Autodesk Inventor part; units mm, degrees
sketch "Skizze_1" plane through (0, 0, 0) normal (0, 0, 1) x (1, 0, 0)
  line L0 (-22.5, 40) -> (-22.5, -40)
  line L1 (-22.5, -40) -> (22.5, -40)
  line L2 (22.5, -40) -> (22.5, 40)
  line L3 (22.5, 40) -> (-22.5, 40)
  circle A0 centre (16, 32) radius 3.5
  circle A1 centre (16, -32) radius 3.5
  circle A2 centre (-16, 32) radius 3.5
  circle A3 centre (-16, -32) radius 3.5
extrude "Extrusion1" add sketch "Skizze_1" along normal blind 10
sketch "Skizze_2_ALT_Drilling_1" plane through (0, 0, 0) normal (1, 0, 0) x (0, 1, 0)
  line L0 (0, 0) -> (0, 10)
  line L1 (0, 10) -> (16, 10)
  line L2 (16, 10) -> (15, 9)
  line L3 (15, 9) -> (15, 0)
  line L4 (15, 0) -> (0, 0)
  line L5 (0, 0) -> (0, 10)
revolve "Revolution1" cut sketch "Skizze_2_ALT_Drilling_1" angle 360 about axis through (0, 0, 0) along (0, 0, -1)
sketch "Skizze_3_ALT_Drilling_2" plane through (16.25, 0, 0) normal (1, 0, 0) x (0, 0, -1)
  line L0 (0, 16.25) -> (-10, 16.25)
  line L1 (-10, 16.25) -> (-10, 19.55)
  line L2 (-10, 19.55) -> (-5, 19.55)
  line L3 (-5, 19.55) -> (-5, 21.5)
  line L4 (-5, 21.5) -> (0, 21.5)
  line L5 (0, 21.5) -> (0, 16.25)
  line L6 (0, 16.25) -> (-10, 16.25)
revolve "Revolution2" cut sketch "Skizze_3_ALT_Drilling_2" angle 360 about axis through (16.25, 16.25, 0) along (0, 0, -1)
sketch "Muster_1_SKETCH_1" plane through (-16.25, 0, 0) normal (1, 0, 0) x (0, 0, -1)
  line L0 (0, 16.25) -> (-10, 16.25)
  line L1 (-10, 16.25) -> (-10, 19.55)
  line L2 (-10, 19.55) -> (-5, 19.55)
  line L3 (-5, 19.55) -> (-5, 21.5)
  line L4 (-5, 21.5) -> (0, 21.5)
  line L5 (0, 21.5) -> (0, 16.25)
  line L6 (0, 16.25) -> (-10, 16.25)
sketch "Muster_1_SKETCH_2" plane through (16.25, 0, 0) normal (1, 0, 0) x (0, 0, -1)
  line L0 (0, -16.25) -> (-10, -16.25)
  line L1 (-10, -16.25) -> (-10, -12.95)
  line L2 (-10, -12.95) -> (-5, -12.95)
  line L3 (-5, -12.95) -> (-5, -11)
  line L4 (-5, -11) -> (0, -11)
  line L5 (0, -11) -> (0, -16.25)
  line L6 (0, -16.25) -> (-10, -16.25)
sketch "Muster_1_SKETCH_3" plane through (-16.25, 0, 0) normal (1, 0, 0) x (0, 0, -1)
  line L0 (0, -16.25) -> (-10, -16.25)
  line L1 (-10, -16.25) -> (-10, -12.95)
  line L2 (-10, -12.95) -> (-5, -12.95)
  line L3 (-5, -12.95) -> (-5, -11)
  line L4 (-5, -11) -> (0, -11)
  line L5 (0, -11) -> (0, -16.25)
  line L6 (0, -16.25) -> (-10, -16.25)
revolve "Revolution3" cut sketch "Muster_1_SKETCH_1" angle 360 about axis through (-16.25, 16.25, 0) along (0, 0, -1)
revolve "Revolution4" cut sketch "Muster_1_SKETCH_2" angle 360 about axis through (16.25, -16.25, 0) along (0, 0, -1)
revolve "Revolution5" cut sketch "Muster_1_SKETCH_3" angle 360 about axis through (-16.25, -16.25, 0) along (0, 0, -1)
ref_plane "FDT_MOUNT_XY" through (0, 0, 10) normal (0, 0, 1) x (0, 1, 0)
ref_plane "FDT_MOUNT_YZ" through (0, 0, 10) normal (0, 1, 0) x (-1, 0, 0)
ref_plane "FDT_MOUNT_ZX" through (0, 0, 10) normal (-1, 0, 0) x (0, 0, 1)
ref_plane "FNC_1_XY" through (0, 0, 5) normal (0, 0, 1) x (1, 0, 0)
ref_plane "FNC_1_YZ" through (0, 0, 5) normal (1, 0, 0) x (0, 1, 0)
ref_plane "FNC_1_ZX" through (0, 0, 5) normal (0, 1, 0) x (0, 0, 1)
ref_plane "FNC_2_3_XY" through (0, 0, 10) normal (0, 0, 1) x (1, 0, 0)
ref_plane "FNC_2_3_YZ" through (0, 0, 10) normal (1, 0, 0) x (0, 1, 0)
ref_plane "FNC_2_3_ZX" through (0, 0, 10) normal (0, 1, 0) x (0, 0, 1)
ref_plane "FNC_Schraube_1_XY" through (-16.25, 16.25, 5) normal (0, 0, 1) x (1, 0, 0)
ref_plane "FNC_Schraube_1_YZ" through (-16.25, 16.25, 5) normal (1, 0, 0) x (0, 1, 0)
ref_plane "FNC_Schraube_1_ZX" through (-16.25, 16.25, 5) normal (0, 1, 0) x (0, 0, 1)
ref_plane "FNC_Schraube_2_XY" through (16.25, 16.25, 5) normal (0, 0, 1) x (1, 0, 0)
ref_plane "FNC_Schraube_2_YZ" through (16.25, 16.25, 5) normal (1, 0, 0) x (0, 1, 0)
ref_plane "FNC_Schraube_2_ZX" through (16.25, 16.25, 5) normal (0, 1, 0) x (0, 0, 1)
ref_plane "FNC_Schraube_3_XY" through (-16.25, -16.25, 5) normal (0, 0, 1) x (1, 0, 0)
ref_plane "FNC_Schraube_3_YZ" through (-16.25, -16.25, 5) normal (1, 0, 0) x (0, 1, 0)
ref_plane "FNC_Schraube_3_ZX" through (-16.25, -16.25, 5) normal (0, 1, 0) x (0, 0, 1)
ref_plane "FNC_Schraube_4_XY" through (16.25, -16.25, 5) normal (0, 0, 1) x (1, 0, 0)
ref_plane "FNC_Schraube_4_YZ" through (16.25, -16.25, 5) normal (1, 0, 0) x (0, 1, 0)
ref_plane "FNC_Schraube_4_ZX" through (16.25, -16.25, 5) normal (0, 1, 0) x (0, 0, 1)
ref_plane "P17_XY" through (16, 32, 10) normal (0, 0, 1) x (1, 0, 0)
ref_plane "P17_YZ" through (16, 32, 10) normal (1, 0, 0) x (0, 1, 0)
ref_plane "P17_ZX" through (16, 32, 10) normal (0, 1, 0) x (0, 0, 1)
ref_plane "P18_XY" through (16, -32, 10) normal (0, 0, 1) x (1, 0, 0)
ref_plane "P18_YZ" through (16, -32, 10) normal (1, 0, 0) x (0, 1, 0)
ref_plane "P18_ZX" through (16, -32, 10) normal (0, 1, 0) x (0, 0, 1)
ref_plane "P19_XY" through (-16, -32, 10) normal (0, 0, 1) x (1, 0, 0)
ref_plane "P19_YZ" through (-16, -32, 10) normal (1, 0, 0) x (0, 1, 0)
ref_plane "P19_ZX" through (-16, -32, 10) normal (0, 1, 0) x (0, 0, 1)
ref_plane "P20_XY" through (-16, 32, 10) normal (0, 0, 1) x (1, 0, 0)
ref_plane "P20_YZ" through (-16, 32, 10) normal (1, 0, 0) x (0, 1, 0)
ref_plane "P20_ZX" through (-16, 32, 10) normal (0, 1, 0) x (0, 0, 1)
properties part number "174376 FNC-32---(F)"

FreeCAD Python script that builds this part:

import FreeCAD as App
import Part
import Sketcher

V = App.Vector

doc = App.newDocument("Part")
params = doc.addObject("Spreadsheet::Sheet", "Params")
for row, (alias, value) in enumerate([
    ("sketch1_diameter", "7 mm"),
    ("sketch1_width", "45 mm"),
    ("sketch1_height", "80 mm"),
    ("pad1_length", "10 mm"),
    ("sketch2_width", "15 mm"),
    ("sketch2_width2", "16 mm"),
    ("sketch2_height", "10 mm"),
    ("sketch2_height2", "9 mm"),
    ("groove_angle", "360 deg"),
    ("sketch3_height", "10 mm"),
    ("sketch3_width", "3.3 mm"),
    ("sketch3_width2", "5.25 mm"),
    ("groove2_angle", "360 deg"),
    ("sketch4_height", "10 mm"),
    ("sketch4_width", "3.3 mm"),
    ("sketch4_width2", "5.25 mm"),
    ("groove3_angle", "360 deg"),
    ("sketch5_height", "10 mm"),
    ("sketch5_width", "3.3 mm"),
    ("sketch5_width2", "5.25 mm"),
    ("groove4_angle", "360 deg"),
    ("sketch6_height", "10 mm"),
    ("sketch6_width", "3.3 mm"),
    ("sketch6_width2", "5.25 mm"),
    ("groove5_angle", "360 deg"),
], start=1):
    params.set(f"A{row}", alias)
    params.set(f"B{row}", "=" + value)
    params.setAlias(f"B{row}", alias)

body = doc.addObject("PartDesign::Body", "Body")

# Sketch on XY plane
sketch1 = body.newObject("Sketcher::SketchObject", "Sketch")
sketch1.AttachmentSupport = (doc.getObject("XY_Plane"), [""])
sketch1.MapMode = "FlatFace"
sketch1.addGeometry(Part.LineSegment(V(22.5, 40, 0), V(-22.5, 40, 0)), False)
sketch1.addGeometry(Part.LineSegment(V(-22.5, 40, 0), V(-22.5, -40, 0)), False)
sketch1.addGeometry(Part.LineSegment(V(-22.5, -40, 0), V(22.5, -40, 0)), False)
sketch1.addGeometry(Part.LineSegment(V(22.5, -40, 0), V(22.5, 40, 0)), False)
sketch1.addGeometry(Part.Circle(V(-16, -32, 0), V(0, 0, 1), 3.5), False)
sketch1.addGeometry(Part.Circle(V(16, -32, 0), V(0, 0, 1), 3.5), False)
sketch1.addGeometry(Part.Circle(V(-16, 32, 0), V(0, 0, 1), 3.5), False)
sketch1.addGeometry(Part.Circle(V(16, 32, 0), V(0, 0, 1), 3.5), False)
sketch1.addConstraint(Sketcher.Constraint("Coincident", 0, 2, 1, 1))
sketch1.addConstraint(Sketcher.Constraint("Coincident", 1, 2, 2, 1))
sketch1.addConstraint(Sketcher.Constraint("Coincident", 2, 2, 3, 1))
sketch1.addConstraint(Sketcher.Constraint("Coincident", 3, 2, 0, 1))
sketch1.addConstraint(Sketcher.Constraint("Horizontal", 0))
sketch1.addConstraint(Sketcher.Constraint("Vertical", 1))
sketch1.addConstraint(Sketcher.Constraint("Horizontal", 2))
sketch1.addConstraint(Sketcher.Constraint("Vertical", 3))
sketch1.addConstraint(Sketcher.Constraint("Equal", 4, 5))
sketch1.addConstraint(Sketcher.Constraint("Equal", 5, 6))
sketch1.addConstraint(Sketcher.Constraint("Equal", 6, 7))
sketch1.addConstraint(Sketcher.Constraint("Symmetric", 5, 3, 6, 3, -1, 1))
sketch1.addConstraint(Sketcher.Constraint("Symmetric", 4, 3, 7, 3, -1, 1))
sketch1.addConstraint(Sketcher.Constraint("Symmetric", 0, 2, 2, 2, -1, 1))
sketch1.addConstraint(Sketcher.Constraint("Symmetric", 4, 3, 5, 3, -2))
sketch1.addConstraint(Sketcher.Constraint("Diameter", 4, 7.0))
sketch1.addConstraint(Sketcher.Constraint("DistanceX", 0, 2, 0, 1, 45.0))
sketch1.addConstraint(Sketcher.Constraint("DistanceY", 1, 2, 1, 1, 80.0))
sketch1.addConstraint(Sketcher.Constraint("DistanceX", 4, 3, -1, 1, 16.0))
sketch1.addConstraint(Sketcher.Constraint("DistanceY", 4, 3, -1, 1, 32.0))
sketch1.setExpression("Constraints[15]", "Params.sketch1_diameter")
sketch1.setExpression("Constraints[16]", "Params.sketch1_width")
sketch1.setExpression("Constraints[17]", "Params.sketch1_height")
pad1 = body.newObject("PartDesign::Pad", "Pad")
pad1.Profile = sketch1
pad1.setExpression("Length", "Params.pad1_length")

# Sketch on YZ plane
sketch2 = body.newObject("Sketcher::SketchObject", "Sketch001")
sketch2.AttachmentSupport = (doc.getObject("YZ_Plane"), [""])
sketch2.MapMode = "FlatFace"
sketch2.addGeometry(Part.LineSegment(V(0, 10, 0), V(0, 0, 0)), False)
sketch2.addGeometry(Part.LineSegment(V(0, 0, 0), V(15, 0, 0)), False)
sketch2.addGeometry(Part.LineSegment(V(15, 0, 0), V(15, 9, 0)), False)
sketch2.addGeometry(Part.LineSegment(V(15, 9, 0), V(16, 10, 0)), False)
sketch2.addGeometry(Part.LineSegment(V(16, 10, 0), V(0, 10, 0)), False)
sketch2.addConstraint(Sketcher.Constraint("Coincident", 0, 2, 1, 1))
sketch2.addConstraint(Sketcher.Constraint("Coincident", 1, 2, 2, 1))
sketch2.addConstraint(Sketcher.Constraint("Coincident", 2, 2, 3, 1))
sketch2.addConstraint(Sketcher.Constraint("Coincident", 3, 2, 4, 1))
sketch2.addConstraint(Sketcher.Constraint("Coincident", 4, 2, 0, 1))
sketch2.addConstraint(Sketcher.Constraint("Vertical", 0))
sketch2.addConstraint(Sketcher.Constraint("Horizontal", 1))
sketch2.addConstraint(Sketcher.Constraint("Vertical", 2))
sketch2.addConstraint(Sketcher.Constraint("Horizontal", 4))
sketch2.addConstraint(Sketcher.Constraint("Coincident", 0, 2, -1, 1))
sketch2.addConstraint(Sketcher.Constraint("DistanceX", 1, 1, 1, 2, 15.0))
sketch2.addConstraint(Sketcher.Constraint("DistanceX", 4, 2, 4, 1, 16.0))
sketch2.addConstraint(Sketcher.Constraint("DistanceY", 0, 2, 0, 1, 10.0))
sketch2.addConstraint(Sketcher.Constraint("DistanceY", 2, 1, 2, 2, 9.0))
sketch2.setExpression("Constraints[10]", "Params.sketch2_width")
sketch2.setExpression("Constraints[11]", "Params.sketch2_width2")
sketch2.setExpression("Constraints[12]", "Params.sketch2_height")
sketch2.setExpression("Constraints[13]", "Params.sketch2_height2")
groove = body.newObject("PartDesign::Groove", "Groove")
groove.Profile = sketch2
groove.ReferenceAxis = (sketch2, ["V_Axis"])
groove.setExpression("Angle", "Params.groove_angle")

# Sketch on YZ plane
sketch3 = body.newObject("Sketcher::SketchObject", "Sketch002")
sketch3.AttachmentSupport = (doc.getObject("YZ_Plane"), [""])
sketch3.MapMode = "FlatFace"
sketch3.AttachmentOffset = App.Placement(V(0, 0, 16.25), App.Rotation())
sketch3.addGeometry(Part.LineSegment(V(16.2, 10, 0), V(16.2, 0, 0)), False)
sketch3.addGeometry(Part.LineSegment(V(16.2, 0, 0), V(21.5, 0, 0)), False)
sketch3.addGeometry(Part.LineSegment(V(21.5, 0, 0), V(21.5, 5, 0)), False)
sketch3.addGeometry(Part.LineSegment(V(21.5, 5, 0), V(19.6, 5, 0)), False)
sketch3.addGeometry(Part.LineSegment(V(19.6, 5, 0), V(19.6, 10, 0)), False)
sketch3.addGeometry(Part.LineSegment(V(19.6, 10, 0), V(16.2, 10, 0)), False)
sketch3.addGeometry(Part.LineSegment(V(16.2, 10, 0), V(16.2, 0, 0)), True)  # axis
sketch3.addConstraint(Sketcher.Constraint("Coincident", 0, 2, 1, 1))
sketch3.addConstraint(Sketcher.Constraint("Coincident", 1, 2, 2, 1))
sketch3.addConstraint(Sketcher.Constraint("Coincident", 2, 2, 3, 1))
sketch3.addConstraint(Sketcher.Constraint("Coincident", 3, 2, 4, 1))
sketch3.addConstraint(Sketcher.Constraint("Coincident", 4, 2, 5, 1))
sketch3.addConstraint(Sketcher.Constraint("Coincident", 5, 2, 0, 1))
sketch3.addConstraint(Sketcher.Constraint("Vertical", 0))
sketch3.addConstraint(Sketcher.Constraint("Horizontal", 1))
sketch3.addConstraint(Sketcher.Constraint("Vertical", 2))
sketch3.addConstraint(Sketcher.Constraint("Horizontal", 3))
sketch3.addConstraint(Sketcher.Constraint("Vertical", 4))
sketch3.addConstraint(Sketcher.Constraint("Horizontal", 5))
sketch3.addConstraint(Sketcher.Constraint("Vertical", 6))
sketch3.addConstraint(Sketcher.Constraint("Coincident", 6, 1, 5, 2))
sketch3.addConstraint(Sketcher.Constraint("PointOnObject", 0, 2, -1))
sketch3.addConstraint(Sketcher.Constraint("PointOnObject", 6, 2, -1))
sketch3.addConstraint(Sketcher.Constraint("Equal", 2, 4))
sketch3.addConstraint(Sketcher.Constraint("DistanceY", 0, 2, 0, 1, 10.0))
sketch3.addConstraint(Sketcher.Constraint("DistanceX", 5, 2, 5, 1, 3.3))
sketch3.addConstraint(Sketcher.Constraint("DistanceX", 1, 1, 1, 2, 5.25))
sketch3.addConstraint(Sketcher.Constraint("DistanceX", -1, 1, 1, 2, 21.5))
sketch3.setExpression("Constraints[17]", "Params.sketch3_height")
sketch3.setExpression("Constraints[18]", "Params.sketch3_width")
sketch3.setExpression("Constraints[19]", "Params.sketch3_width2")
groove2 = body.newObject("PartDesign::Groove", "Groove001")
groove2.Profile = sketch3
groove2.ReferenceAxis = (sketch3, ["Axis0"])
groove2.setExpression("Angle", "Params.groove2_angle")

# Sketch on YZ plane
sketch4 = body.newObject("Sketcher::SketchObject", "Sketch003")
sketch4.AttachmentSupport = (doc.getObject("YZ_Plane"), [""])
sketch4.MapMode = "FlatFace"
sketch4.AttachmentOffset = App.Placement(V(0, 0, -16.25), App.Rotation())
sketch4.addGeometry(Part.LineSegment(V(16.2, 10, 0), V(16.2, 0, 0)), False)
sketch4.addGeometry(Part.LineSegment(V(16.2, 0, 0), V(21.5, 0, 0)), False)
sketch4.addGeometry(Part.LineSegment(V(21.5, 0, 0), V(21.5, 5, 0)), False)
sketch4.addGeometry(Part.LineSegment(V(21.5, 5, 0), V(19.6, 5, 0)), False)
sketch4.addGeometry(Part.LineSegment(V(19.6, 5, 0), V(19.6, 10, 0)), False)
sketch4.addGeometry(Part.LineSegment(V(19.6, 10, 0), V(16.2, 10, 0)), False)
sketch4.addGeometry(Part.LineSegment(V(16.2, 10, 0), V(16.2, 0, 0)), True)  # axis
sketch4.addConstraint(Sketcher.Constraint("Coincident", 0, 2, 1, 1))
sketch4.addConstraint(Sketcher.Constraint("Coincident", 1, 2, 2, 1))
sketch4.addConstraint(Sketcher.Constraint("Coincident", 2, 2, 3, 1))
sketch4.addConstraint(Sketcher.Constraint("Coincident", 3, 2, 4, 1))
sketch4.addConstraint(Sketcher.Constraint("Coincident", 4, 2, 5, 1))
sketch4.addConstraint(Sketcher.Constraint("Coincident", 5, 2, 0, 1))
sketch4.addConstraint(Sketcher.Constraint("Vertical", 0))
sketch4.addConstraint(Sketcher.Constraint("Horizontal", 1))
sketch4.addConstraint(Sketcher.Constraint("Vertical", 2))
sketch4.addConstraint(Sketcher.Constraint("Horizontal", 3))
sketch4.addConstraint(Sketcher.Constraint("Vertical", 4))
sketch4.addConstraint(Sketcher.Constraint("Horizontal", 5))
sketch4.addConstraint(Sketcher.Constraint("Vertical", 6))
sketch4.addConstraint(Sketcher.Constraint("Coincident", 6, 1, 5, 2))
sketch4.addConstraint(Sketcher.Constraint("PointOnObject", 0, 2, -1))
sketch4.addConstraint(Sketcher.Constraint("PointOnObject", 6, 2, -1))
sketch4.addConstraint(Sketcher.Constraint("Equal", 2, 4))
sketch4.addConstraint(Sketcher.Constraint("DistanceY", 0, 2, 0, 1, 10.0))
sketch4.addConstraint(Sketcher.Constraint("DistanceX", 5, 2, 5, 1, 3.3))
sketch4.addConstraint(Sketcher.Constraint("DistanceX", 1, 1, 1, 2, 5.25))
sketch4.addConstraint(Sketcher.Constraint("DistanceX", -1, 1, 1, 2, 21.5))
sketch4.setExpression("Constraints[17]", "Params.sketch4_height")
sketch4.setExpression("Constraints[18]", "Params.sketch4_width")
sketch4.setExpression("Constraints[19]", "Params.sketch4_width2")
groove3 = body.newObject("PartDesign::Groove", "Groove002")
groove3.Profile = sketch4
groove3.ReferenceAxis = (sketch4, ["Axis0"])
groove3.setExpression("Angle", "Params.groove3_angle")

# Sketch on YZ plane
sketch5 = body.newObject("Sketcher::SketchObject", "Sketch004")
sketch5.AttachmentSupport = (doc.getObject("YZ_Plane"), [""])
sketch5.MapMode = "FlatFace"
sketch5.AttachmentOffset = App.Placement(V(0, 0, 16.25), App.Rotation())
sketch5.addGeometry(Part.LineSegment(V(-16.2, 10, 0), V(-16.2, 0, 0)), False)
sketch5.addGeometry(Part.LineSegment(V(-16.2, 0, 0), V(-11, 0, 0)), False)
sketch5.addGeometry(Part.LineSegment(V(-11, 0, 0), V(-11, 5, 0)), False)
sketch5.addGeometry(Part.LineSegment(V(-11, 5, 0), V(-12.9, 5, 0)), False)
sketch5.addGeometry(Part.LineSegment(V(-12.9, 5, 0), V(-12.9, 10, 0)), False)
sketch5.addGeometry(Part.LineSegment(V(-12.9, 10, 0), V(-16.2, 10, 0)), False)
sketch5.addGeometry(Part.LineSegment(V(-16.2, 10, 0), V(-16.2, 0, 0)), True)  # axis
sketch5.addConstraint(Sketcher.Constraint("Coincident", 0, 2, 1, 1))
sketch5.addConstraint(Sketcher.Constraint("Coincident", 1, 2, 2, 1))
sketch5.addConstraint(Sketcher.Constraint("Coincident", 2, 2, 3, 1))
sketch5.addConstraint(Sketcher.Constraint("Coincident", 3, 2, 4, 1))
sketch5.addConstraint(Sketcher.Constraint("Coincident", 4, 2, 5, 1))
sketch5.addConstraint(Sketcher.Constraint("Coincident", 5, 2, 0, 1))
sketch5.addConstraint(Sketcher.Constraint("Vertical", 0))
sketch5.addConstraint(Sketcher.Constraint("Horizontal", 1))
sketch5.addConstraint(Sketcher.Constraint("Vertical", 2))
sketch5.addConstraint(Sketcher.Constraint("Horizontal", 3))
sketch5.addConstraint(Sketcher.Constraint("Vertical", 4))
sketch5.addConstraint(Sketcher.Constraint("Horizontal", 5))
sketch5.addConstraint(Sketcher.Constraint("Vertical", 6))
sketch5.addConstraint(Sketcher.Constraint("Coincident", 6, 1, 5, 2))
sketch5.addConstraint(Sketcher.Constraint("PointOnObject", 0, 2, -1))
sketch5.addConstraint(Sketcher.Constraint("PointOnObject", 6, 2, -1))
sketch5.addConstraint(Sketcher.Constraint("Equal", 2, 4))
sketch5.addConstraint(Sketcher.Constraint("DistanceY", 0, 2, 0, 1, 10.0))
sketch5.addConstraint(Sketcher.Constraint("DistanceX", 5, 2, 5, 1, 3.3))
sketch5.addConstraint(Sketcher.Constraint("DistanceX", 1, 2, -1, 1, 11.0))
sketch5.addConstraint(Sketcher.Constraint("DistanceX", 1, 1, 1, 2, 5.25))
sketch5.setExpression("Constraints[17]", "Params.sketch5_height")
sketch5.setExpression("Constraints[18]", "Params.sketch5_width")
sketch5.setExpression("Constraints[20]", "Params.sketch5_width2")
groove4 = body.newObject("PartDesign::Groove", "Groove003")
groove4.Profile = sketch5
groove4.ReferenceAxis = (sketch5, ["Axis0"])
groove4.setExpression("Angle", "Params.groove4_angle")

# Sketch on YZ plane
sketch6 = body.newObject("Sketcher::SketchObject", "Sketch005")
sketch6.AttachmentSupport = (doc.getObject("YZ_Plane"), [""])
sketch6.MapMode = "FlatFace"
sketch6.AttachmentOffset = App.Placement(V(0, 0, -16.25), App.Rotation())
sketch6.addGeometry(Part.LineSegment(V(-16.2, 10, 0), V(-16.2, 0, 0)), False)
sketch6.addGeometry(Part.LineSegment(V(-16.2, 0, 0), V(-11, 0, 0)), False)
sketch6.addGeometry(Part.LineSegment(V(-11, 0, 0), V(-11, 5, 0)), False)
sketch6.addGeometry(Part.LineSegment(V(-11, 5, 0), V(-12.9, 5, 0)), False)
sketch6.addGeometry(Part.LineSegment(V(-12.9, 5, 0), V(-12.9, 10, 0)), False)
sketch6.addGeometry(Part.LineSegment(V(-12.9, 10, 0), V(-16.2, 10, 0)), False)
sketch6.addGeometry(Part.LineSegment(V(-16.2, 10, 0), V(-16.2, 0, 0)), True)  # axis
sketch6.addConstraint(Sketcher.Constraint("Coincident", 0, 2, 1, 1))
sketch6.addConstraint(Sketcher.Constraint("Coincident", 1, 2, 2, 1))
sketch6.addConstraint(Sketcher.Constraint("Coincident", 2, 2, 3, 1))
sketch6.addConstraint(Sketcher.Constraint("Coincident", 3, 2, 4, 1))
sketch6.addConstraint(Sketcher.Constraint("Coincident", 4, 2, 5, 1))
sketch6.addConstraint(Sketcher.Constraint("Coincident", 5, 2, 0, 1))
sketch6.addConstraint(Sketcher.Constraint("Vertical", 0))
sketch6.addConstraint(Sketcher.Constraint("Horizontal", 1))
sketch6.addConstraint(Sketcher.Constraint("Vertical", 2))
sketch6.addConstraint(Sketcher.Constraint("Horizontal", 3))
sketch6.addConstraint(Sketcher.Constraint("Vertical", 4))
sketch6.addConstraint(Sketcher.Constraint("Horizontal", 5))
sketch6.addConstraint(Sketcher.Constraint("Vertical", 6))
sketch6.addConstraint(Sketcher.Constraint("Coincident", 6, 1, 5, 2))
sketch6.addConstraint(Sketcher.Constraint("PointOnObject", 0, 2, -1))
sketch6.addConstraint(Sketcher.Constraint("PointOnObject", 6, 2, -1))
sketch6.addConstraint(Sketcher.Constraint("Equal", 2, 4))
sketch6.addConstraint(Sketcher.Constraint("DistanceY", 0, 2, 0, 1, 10.0))
sketch6.addConstraint(Sketcher.Constraint("DistanceX", 5, 2, 5, 1, 3.3))
sketch6.addConstraint(Sketcher.Constraint("DistanceX", 1, 2, -1, 1, 11.0))
sketch6.addConstraint(Sketcher.Constraint("DistanceX", 1, 1, 1, 2, 5.25))
sketch6.setExpression("Constraints[17]", "Params.sketch6_height")
sketch6.setExpression("Constraints[18]", "Params.sketch6_width")
sketch6.setExpression("Constraints[20]", "Params.sketch6_width2")
groove5 = body.newObject("PartDesign::Groove", "Groove004")
groove5.Profile = sketch6
groove5.ReferenceAxis = (sketch6, ["Axis0"])
groove5.setExpression("Angle", "Params.groove5_angle")

doc.recompute()
